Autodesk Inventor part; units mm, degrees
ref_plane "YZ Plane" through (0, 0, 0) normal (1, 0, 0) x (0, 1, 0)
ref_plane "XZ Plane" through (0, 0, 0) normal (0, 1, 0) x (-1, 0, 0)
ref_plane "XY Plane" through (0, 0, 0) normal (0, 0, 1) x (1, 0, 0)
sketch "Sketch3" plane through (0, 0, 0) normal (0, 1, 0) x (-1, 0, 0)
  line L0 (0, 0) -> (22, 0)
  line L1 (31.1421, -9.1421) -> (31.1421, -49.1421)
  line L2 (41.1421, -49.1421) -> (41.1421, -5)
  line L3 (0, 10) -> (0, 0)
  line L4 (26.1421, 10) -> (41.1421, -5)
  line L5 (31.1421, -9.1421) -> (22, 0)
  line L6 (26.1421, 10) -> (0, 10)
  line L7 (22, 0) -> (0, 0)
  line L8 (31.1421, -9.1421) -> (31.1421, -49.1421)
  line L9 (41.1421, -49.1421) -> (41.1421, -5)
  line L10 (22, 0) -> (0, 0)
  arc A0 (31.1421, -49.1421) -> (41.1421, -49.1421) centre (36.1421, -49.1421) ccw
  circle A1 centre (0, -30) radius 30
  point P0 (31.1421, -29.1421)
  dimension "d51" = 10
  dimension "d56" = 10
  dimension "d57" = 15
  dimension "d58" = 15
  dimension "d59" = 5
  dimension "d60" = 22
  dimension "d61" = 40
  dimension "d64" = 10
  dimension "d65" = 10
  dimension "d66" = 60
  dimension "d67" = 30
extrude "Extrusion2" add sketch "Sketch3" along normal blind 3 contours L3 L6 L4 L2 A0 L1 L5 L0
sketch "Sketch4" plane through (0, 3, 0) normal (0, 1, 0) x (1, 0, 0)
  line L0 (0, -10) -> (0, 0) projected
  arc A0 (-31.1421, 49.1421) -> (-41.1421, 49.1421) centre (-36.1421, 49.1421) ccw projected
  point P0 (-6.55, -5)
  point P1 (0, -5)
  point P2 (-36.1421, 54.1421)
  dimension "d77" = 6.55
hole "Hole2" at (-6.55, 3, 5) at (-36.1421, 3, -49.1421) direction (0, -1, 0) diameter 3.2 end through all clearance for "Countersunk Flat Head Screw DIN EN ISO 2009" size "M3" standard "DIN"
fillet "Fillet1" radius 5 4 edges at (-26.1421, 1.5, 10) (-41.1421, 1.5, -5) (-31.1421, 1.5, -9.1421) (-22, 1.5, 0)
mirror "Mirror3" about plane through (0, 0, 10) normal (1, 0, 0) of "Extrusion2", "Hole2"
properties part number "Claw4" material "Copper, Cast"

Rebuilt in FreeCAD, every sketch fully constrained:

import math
import FreeCAD as App
import Part
import Sketcher


def edges_at(feature, points):
    """Names of the edges that pass closest to the given points."""
    edges = feature.Shape.Edges
    near = lambda p: min(range(len(edges)), key=lambda i: edges[i].distToShape(Part.Vertex(*p))[0])
    return sorted({f"Edge{near(p) + 1}" for p in points})

doc = App.newDocument("Part")
body = doc.addObject("PartDesign::Body", "Body")

# Sketch on XZ plane
sketch1 = body.newObject("Sketcher::SketchObject", "Sketch")
sketch1.AttachmentSupport = (doc.getObject("XZ_Plane"), [""])
sketch1.MapMode = "FlatFace"
sketch1.addGeometry([
    Part.LineSegment(App.Vector(0, 10, 0), App.Vector(0, 0, 0)),  # 0
    Part.LineSegment(App.Vector(0, 0, 0), App.Vector(-22, 0, 0)),  # 1
    Part.LineSegment(App.Vector(-22, 0, 0), App.Vector(-31, -9, 0)),  # 2
    Part.LineSegment(App.Vector(-31, -9, 0), App.Vector(-31, -49, 0)),  # 3
    Part.ArcOfCircle(Part.Circle(App.Vector(-36, -49, 0), App.Vector(0, 0, 1), 5), math.radians(180), math.radians(360)),  # 4
    Part.LineSegment(App.Vector(-41, -49, 0), App.Vector(-41, -5, 0)),  # 5
    Part.LineSegment(App.Vector(-41, -5, 0), App.Vector(-26, 10, 0)),  # 6
    Part.LineSegment(App.Vector(-26, 10, 0), App.Vector(0, 10, 0)),  # 7
], False)
sketch1.addConstraint([
    Sketcher.Constraint("Coincident", 0, 2, 1, 1),
    Sketcher.Constraint("Coincident", 1, 2, 2, 1),
    Sketcher.Constraint("Coincident", 2, 2, 3, 1),
    Sketcher.Constraint("Tangent", 3, 2, 4, 2),
    Sketcher.Constraint("Tangent", 4, 1, 5, 1),
    Sketcher.Constraint("Coincident", 5, 2, 6, 1),
    Sketcher.Constraint("Coincident", 6, 2, 7, 1),
    Sketcher.Constraint("Coincident", 7, 2, 0, 1),
    Sketcher.Constraint("Vertical", 0),
    Sketcher.Constraint("Horizontal", 1),
    Sketcher.Constraint("Vertical", 3),
    Sketcher.Constraint("Vertical", 5),
    Sketcher.Constraint("Horizontal", 7),
    Sketcher.Constraint("Coincident", 0, 2, -1, 1),
    Sketcher.Constraint("Parallel", 2, 6),
    Sketcher.Constraint("Radius", 4, 5.0),
    Sketcher.Constraint("DistanceX", 1, 2, 1, 1, 22.0),
    Sketcher.Constraint("DistanceY", 0, 2, 0, 1, 10.0),
    Sketcher.Constraint("DistanceY", 3, 2, 3, 1, 40.0),
    Sketcher.Constraint("DistanceY", 5, 2, -1, 1, 5.0),
    Sketcher.Constraint("DistanceX", 2, 2, 6, 2, 5.0),
    Sketcher.Constraint("DistanceX", 7, 1, 7, 2, 26.142),
])
pad1 = body.newObject("PartDesign::Pad", "Pad")
pad1.Profile = sketch1
pad1.Length = 3
pad1.Reversed = True

# Sketch on XZ plane
sketch2 = body.newObject("Sketcher::SketchObject", "Sketch001")
sketch2.AttachmentSupport = (doc.getObject("XZ_Plane"), [""])
sketch2.MapMode = "FlatFace"
sketch2.AttachmentOffset = App.Placement(App.Vector(0, 0, -3), App.Rotation())
sketch2.addGeometry([
    Part.Circle(App.Vector(-6.5, 5, 0), App.Vector(0, 0, 1), 1.6),
    Part.Circle(App.Vector(-36.1, -49.1, 0), App.Vector(0, 0, 1), 1.6),
], False)
sketch2.addConstraint([
    Sketcher.Constraint("Equal", 0, 1),
    Sketcher.Constraint("Diameter", 0, 3.2),
    Sketcher.Constraint("DistanceY", -1, 1, 0, 3, 5.0),
    Sketcher.Constraint("DistanceX", 0, 3, -1, 1, 6.55),
    Sketcher.Constraint("DistanceX", 1, 3, -1, 1, 36.142),
    Sketcher.Constraint("DistanceY", 1, 3, -1, 1, 49.142),
])
doc.recompute()
hole = body.newObject("PartDesign::Hole", "Hole")
hole.Profile = sketch2
hole.ThreadType = "None"
hole.Diameter = 3.2
hole.DepthType = "ThroughAll"
hole.Reversed = True
doc.recompute()

fillet = body.newObject("PartDesign::Fillet", "Fillet")
fillet.Base = (hole, edges_at(hole, [
    (-26.142, 1.5, 10),
    (-41.142, 1.5, -5),
    (-31.142, 1.5, -9.142),
    (-22, 1.5, 0),
]))
fillet.Radius = 5
doc.recompute()

mirrored = body.newObject("PartDesign::Mirrored", "Mirrored")
mirrored.Originals = [pad1, hole]
mirrored.MirrorPlane = (doc.getObject("YZ_Plane"), [""])
body.Tip = mirrored

doc.recompute()
